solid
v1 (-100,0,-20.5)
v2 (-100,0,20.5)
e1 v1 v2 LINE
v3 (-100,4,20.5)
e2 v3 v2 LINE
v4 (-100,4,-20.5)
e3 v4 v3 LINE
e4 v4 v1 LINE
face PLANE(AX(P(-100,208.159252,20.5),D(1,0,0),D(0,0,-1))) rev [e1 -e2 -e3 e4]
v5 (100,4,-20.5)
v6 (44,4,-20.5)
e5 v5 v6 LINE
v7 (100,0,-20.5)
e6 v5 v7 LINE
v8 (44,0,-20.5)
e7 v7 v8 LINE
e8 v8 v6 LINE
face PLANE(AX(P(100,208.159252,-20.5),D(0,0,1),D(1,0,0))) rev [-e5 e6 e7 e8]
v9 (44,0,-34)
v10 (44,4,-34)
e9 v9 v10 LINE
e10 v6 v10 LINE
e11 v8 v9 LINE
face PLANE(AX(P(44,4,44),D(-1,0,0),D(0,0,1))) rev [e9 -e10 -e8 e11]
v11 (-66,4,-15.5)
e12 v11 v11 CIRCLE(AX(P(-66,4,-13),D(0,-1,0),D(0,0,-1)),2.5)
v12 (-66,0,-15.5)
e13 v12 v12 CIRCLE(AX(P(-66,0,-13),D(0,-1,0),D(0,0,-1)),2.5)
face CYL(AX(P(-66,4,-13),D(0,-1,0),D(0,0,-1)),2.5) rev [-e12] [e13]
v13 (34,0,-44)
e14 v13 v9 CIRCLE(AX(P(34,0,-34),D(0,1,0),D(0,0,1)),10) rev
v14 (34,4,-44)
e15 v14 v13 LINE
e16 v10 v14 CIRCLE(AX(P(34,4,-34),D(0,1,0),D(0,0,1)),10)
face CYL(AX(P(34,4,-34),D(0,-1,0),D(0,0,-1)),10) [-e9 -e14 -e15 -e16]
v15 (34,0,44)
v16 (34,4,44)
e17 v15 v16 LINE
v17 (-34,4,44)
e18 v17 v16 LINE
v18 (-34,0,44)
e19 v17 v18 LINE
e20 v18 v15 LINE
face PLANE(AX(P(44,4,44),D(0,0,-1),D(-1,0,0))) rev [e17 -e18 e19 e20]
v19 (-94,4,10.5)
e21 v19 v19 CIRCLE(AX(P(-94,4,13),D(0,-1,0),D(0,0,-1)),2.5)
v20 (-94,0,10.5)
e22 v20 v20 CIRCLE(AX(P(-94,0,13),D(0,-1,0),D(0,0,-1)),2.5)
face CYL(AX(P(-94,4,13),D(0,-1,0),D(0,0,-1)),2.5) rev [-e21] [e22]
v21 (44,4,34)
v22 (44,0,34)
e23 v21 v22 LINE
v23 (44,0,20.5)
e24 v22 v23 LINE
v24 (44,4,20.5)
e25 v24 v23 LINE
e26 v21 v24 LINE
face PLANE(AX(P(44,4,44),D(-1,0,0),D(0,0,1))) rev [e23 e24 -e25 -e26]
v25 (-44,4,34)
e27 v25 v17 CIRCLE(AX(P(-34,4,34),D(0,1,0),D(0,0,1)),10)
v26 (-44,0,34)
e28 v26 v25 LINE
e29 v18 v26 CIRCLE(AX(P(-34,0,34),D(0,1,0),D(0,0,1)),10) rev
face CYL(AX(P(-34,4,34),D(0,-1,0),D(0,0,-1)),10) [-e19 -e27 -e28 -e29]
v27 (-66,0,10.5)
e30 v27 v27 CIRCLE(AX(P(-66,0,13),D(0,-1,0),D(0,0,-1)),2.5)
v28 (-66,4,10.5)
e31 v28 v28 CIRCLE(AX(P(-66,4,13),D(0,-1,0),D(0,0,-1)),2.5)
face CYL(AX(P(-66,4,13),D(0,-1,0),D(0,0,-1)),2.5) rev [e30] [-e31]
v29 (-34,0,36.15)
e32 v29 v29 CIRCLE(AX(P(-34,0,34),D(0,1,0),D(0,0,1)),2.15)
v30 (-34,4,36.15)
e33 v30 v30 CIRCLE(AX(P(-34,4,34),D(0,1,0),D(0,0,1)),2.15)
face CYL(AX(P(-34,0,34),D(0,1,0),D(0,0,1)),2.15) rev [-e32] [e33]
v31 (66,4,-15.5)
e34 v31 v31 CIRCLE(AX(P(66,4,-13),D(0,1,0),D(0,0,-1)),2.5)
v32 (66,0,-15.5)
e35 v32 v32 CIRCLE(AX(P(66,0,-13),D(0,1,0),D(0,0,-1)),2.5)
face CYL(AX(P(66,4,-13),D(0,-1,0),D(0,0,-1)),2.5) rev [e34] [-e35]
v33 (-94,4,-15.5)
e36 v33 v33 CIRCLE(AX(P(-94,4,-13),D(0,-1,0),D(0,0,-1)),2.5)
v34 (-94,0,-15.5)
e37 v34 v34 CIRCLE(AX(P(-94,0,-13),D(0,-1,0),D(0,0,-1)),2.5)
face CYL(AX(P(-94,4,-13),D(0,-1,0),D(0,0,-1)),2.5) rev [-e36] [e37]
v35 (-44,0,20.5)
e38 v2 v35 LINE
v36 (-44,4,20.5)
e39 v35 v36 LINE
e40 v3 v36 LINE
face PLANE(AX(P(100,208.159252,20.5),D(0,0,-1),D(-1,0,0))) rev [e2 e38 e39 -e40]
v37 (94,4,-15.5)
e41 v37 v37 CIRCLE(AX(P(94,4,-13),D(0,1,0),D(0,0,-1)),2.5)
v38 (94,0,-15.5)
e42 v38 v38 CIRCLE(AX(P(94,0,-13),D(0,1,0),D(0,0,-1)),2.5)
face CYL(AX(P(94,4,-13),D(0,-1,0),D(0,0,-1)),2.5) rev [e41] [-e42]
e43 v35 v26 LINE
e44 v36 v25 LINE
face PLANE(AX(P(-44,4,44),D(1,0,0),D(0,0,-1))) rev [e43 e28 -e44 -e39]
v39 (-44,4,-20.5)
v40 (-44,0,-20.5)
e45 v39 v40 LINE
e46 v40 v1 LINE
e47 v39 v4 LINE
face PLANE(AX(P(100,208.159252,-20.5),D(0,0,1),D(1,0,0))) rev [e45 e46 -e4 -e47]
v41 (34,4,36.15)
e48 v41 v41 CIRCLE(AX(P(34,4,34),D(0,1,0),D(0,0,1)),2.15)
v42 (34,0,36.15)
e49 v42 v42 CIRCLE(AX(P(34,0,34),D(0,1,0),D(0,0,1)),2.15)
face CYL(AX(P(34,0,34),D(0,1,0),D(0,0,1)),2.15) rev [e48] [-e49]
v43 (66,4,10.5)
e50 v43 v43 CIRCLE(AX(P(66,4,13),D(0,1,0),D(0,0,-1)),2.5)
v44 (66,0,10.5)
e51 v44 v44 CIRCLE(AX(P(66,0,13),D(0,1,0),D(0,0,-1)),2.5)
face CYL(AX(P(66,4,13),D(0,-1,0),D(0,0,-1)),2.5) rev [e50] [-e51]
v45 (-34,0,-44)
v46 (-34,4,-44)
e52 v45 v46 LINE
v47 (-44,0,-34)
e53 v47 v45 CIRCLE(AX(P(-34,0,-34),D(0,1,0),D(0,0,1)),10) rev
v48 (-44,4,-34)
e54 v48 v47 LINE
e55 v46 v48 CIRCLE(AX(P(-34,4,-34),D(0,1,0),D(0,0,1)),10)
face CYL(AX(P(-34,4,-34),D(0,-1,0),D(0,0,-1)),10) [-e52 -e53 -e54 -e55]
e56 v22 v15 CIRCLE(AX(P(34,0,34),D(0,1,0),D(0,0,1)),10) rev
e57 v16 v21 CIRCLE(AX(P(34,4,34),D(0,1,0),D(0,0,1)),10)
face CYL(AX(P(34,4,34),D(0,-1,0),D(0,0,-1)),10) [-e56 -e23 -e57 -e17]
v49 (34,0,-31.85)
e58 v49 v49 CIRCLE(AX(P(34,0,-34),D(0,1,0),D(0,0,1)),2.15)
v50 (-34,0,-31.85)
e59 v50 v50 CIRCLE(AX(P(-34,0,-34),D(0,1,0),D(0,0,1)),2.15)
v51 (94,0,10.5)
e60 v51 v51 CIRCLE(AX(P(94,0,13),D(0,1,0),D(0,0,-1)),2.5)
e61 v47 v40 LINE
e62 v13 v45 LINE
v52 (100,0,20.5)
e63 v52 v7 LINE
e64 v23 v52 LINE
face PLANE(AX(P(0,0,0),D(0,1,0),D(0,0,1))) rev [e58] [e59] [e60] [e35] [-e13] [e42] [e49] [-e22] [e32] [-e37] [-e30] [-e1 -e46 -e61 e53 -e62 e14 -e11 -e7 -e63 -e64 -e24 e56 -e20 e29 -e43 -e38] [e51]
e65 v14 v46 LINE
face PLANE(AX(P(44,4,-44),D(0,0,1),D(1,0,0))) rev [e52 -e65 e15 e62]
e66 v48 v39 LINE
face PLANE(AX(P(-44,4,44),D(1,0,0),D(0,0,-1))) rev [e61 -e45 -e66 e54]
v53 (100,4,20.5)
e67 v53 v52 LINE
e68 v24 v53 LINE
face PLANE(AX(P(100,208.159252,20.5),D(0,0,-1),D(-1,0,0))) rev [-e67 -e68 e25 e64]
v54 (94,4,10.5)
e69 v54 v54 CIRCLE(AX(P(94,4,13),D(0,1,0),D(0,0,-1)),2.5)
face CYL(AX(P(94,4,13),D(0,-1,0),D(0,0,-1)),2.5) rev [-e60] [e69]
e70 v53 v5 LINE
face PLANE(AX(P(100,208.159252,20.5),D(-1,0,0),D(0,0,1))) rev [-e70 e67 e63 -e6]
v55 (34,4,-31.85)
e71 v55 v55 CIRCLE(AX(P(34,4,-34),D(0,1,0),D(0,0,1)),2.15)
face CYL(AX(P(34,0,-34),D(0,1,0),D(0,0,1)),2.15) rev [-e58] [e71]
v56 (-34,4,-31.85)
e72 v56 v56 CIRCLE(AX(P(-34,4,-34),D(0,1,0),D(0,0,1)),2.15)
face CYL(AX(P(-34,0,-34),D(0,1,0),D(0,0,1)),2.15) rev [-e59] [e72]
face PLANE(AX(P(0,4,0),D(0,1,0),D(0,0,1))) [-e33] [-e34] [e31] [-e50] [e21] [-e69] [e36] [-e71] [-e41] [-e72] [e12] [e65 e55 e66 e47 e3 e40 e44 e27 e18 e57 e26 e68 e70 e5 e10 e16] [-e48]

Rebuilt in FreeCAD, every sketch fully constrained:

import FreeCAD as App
import Part
import Sketcher
from FreeCAD import Vector


def edges_at(feature, points):
    """Names of the edges that pass closest to the given points."""
    edges = feature.Shape.Edges
    near = lambda p: min(range(len(edges)), key=lambda i: edges[i].distToShape(Part.Vertex(*p))[0])
    return sorted({f"Edge{near(p) + 1}" for p in points})


def add_polygon(sketch, points):
    """Adds a closed chain of lines whose ends are joined by coincident constraints."""
    first, n = sketch.GeometryCount, len(points)
    for a, b in zip(points, points[1:] + points[:1]):
        sketch.addGeometry(Part.LineSegment(App.Vector(*a, 0), App.Vector(*b, 0)), False)
    for i in range(n):
        sketch.addConstraint(Sketcher.Constraint("Coincident", first + i, 2, first + (i + 1) % n, 1))

doc = App.newDocument("Part")
params = doc.addObject("Spreadsheet::Sheet", "Params")
for row, (alias, value) in enumerate([
    ("sketch1_width", "88 mm"),
    ("pad1_length", "4 mm"),
    ("fillet_radius", "10 mm"),
    ("sketch2_diameter", "4.3 mm"),
    ("sketch3_width", "200 mm"),
    ("sketch3_height", "41 mm"),
    ("pad2_length", "4 mm"),
    ("sketch4_diameter", "5 mm"),
], start=1):
    params.set(f"A{row}", alias)
    params.set(f"B{row}", "=" + value)
    params.setAlias(f"B{row}", alias)

body = doc.addObject("PartDesign::Body", "Body")

# Sketch on XZ plane
sketch1 = doc.addObject("Sketcher::SketchObject", "Sketch")
body.addObject(sketch1)
sketch1.AttachmentSupport = (doc.XZ_Plane, [""])
sketch1.MapMode = "FlatFace"
add_polygon(sketch1, [(-44, -44), (-44, 44), (44, 44), (44, -44)])  # lines 0-3
sketch1.addConstraint([
    Sketcher.Constraint("Vertical", 0),
    Sketcher.Constraint("Horizontal", 1),
    Sketcher.Constraint("Vertical", 2),
    Sketcher.Constraint("Horizontal", 3),
    Sketcher.Constraint("Symmetric", 0, 2, 2, 2, -1, 1),
    Sketcher.Constraint("Equal", 3, 0),
    Sketcher.Constraint("DistanceX", 1, 1, 1, 2, 88.0),
])
sketch1.setExpression("Constraints[10]", "Params.sketch1_width")
pad1 = doc.addObject("PartDesign::Pad", "Pad")
body.addObject(pad1)
pad1.Profile = sketch1
pad1.setExpression("Length", "Params.pad1_length")
pad1.Reversed = True
doc.recompute()

fillet = doc.addObject("PartDesign::Fillet", "Fillet")
body.addObject(fillet)
fillet.Base = (pad1, edges_at(pad1, [
    (-44, 2, -44),
    (44, 2, -44),
    (44, 2, 44),
    (-44, 2, 44),
]))
fillet.setExpression("Radius", "Params.fillet_radius")

# Sketch on XZ plane
sketch2 = doc.addObject("Sketcher::SketchObject", "Sketch001")
body.addObject(sketch2)
sketch2.AttachmentSupport = (doc.XZ_Plane, [""])
sketch2.MapMode = "FlatFace"
sketch2.AttachmentOffset = App.Placement(Vector(0, 0, -4), App.Rotation())
sketch2.addGeometry([
    Part.Circle(Vector(34, -34, 0), Vector(0, 0, 1), 2.1),
    Part.Circle(Vector(-34, -34, 0), Vector(0, 0, 1), 2.1),
    Part.Circle(Vector(34, 34, 0), Vector(0, 0, 1), 2.1),
    Part.Circle(Vector(-34, 34, 0), Vector(0, 0, 1), 2.1),
], False)
sketch2.addConstraint([
    Sketcher.Constraint("Equal", 0, 1),
    Sketcher.Constraint("Equal", 1, 2),
    Sketcher.Constraint("Equal", 2, 3),
    Sketcher.Constraint("Symmetric", 1, 3, 2, 3, -1, 1),
    Sketcher.Constraint("Symmetric", 0, 3, 3, 3, -1, 1),
    Sketcher.Constraint("Symmetric", 0, 3, 1, 3, -2),
    Sketcher.Constraint("Diameter", 0, 4.3),
    Sketcher.Constraint("DistanceX", -1, 1, 0, 3, 34.0),
    Sketcher.Constraint("DistanceY", 0, 3, -1, 1, 34.0),
])
sketch2.setExpression("Constraints[6]", "Params.sketch2_diameter")
pocket1 = doc.addObject("PartDesign::Pocket", "Pocket")
body.addObject(pocket1)
pocket1.Profile = sketch2
pocket1.Type = "ThroughAll"
pocket1.Reversed = True

# Sketch on XZ plane
sketch3 = doc.addObject("Sketcher::SketchObject", "Sketch002")
body.addObject(sketch3)
sketch3.AttachmentSupport = (doc.XZ_Plane, [""])
sketch3.MapMode = "FlatFace"
add_polygon(sketch3, [(-100, -20), (-100, 20), (100, 20), (100, -20)])  # lines 0-3
sketch3.addConstraint([
    Sketcher.Constraint("Vertical", 0),
    Sketcher.Constraint("Horizontal", 1),
    Sketcher.Constraint("Vertical", 2),
    Sketcher.Constraint("Horizontal", 3),
    Sketcher.Constraint("Symmetric", 0, 2, 2, 2, -1, 1),
    Sketcher.Constraint("DistanceX", 1, 1, 1, 2, 200.0),
    Sketcher.Constraint("DistanceY", 0, 1, 0, 2, 41.0),
])
sketch3.setExpression("Constraints[9]", "Params.sketch3_width")
sketch3.setExpression("Constraints[10]", "Params.sketch3_height")
pad2 = doc.addObject("PartDesign::Pad", "Pad001")
body.addObject(pad2)
pad2.Profile = sketch3
pad2.setExpression("Length", "Params.pad2_length")
pad2.Reversed = True

# Sketch on XZ plane
sketch4 = doc.addObject("Sketcher::SketchObject", "Sketch003")
body.addObject(sketch4)
sketch4.AttachmentSupport = (doc.XZ_Plane, [""])
sketch4.MapMode = "FlatFace"
sketch4.addGeometry([
    Part.Circle(Vector(-66, 13, 0), Vector(0, 0, 1), 2.5),
    Part.Circle(Vector(-66, -13, 0), Vector(0, 0, 1), 2.5),
    Part.Circle(Vector(-94, -13, 0), Vector(0, 0, 1), 2.5),
    Part.Circle(Vector(-94, 13, 0), Vector(0, 0, 1), 2.5),
], False)
sketch4.addConstraint([
    Sketcher.Constraint("Equal", 0, 1),
    Sketcher.Constraint("Equal", 1, 2),
    Sketcher.Constraint("Equal", 2, 3),
    Sketcher.Constraint("Symmetric", 0, 3, 1, 3, -1),
    Sketcher.Constraint("Symmetric", 2, 3, 3, 3, -1),
    Sketcher.Constraint("Horizontal", 1, 3, 2, 3),
    Sketcher.Constraint("Diameter", 0, 5.0),
    Sketcher.Constraint("DistanceX", 0, 3, -1, 1, 66.0),
    Sketcher.Constraint("DistanceY", -1, 1, 0, 3, 13.0),
    Sketcher.Constraint("DistanceX", 2, 3, -1, 1, 94.0),
])
sketch4.setExpression("Constraints[6]", "Params.sketch4_diameter")
pocket2 = doc.addObject("PartDesign::Pocket", "Pocket001")
body.addObject(pocket2)
pocket2.Profile = sketch4
pocket2.Type = "ThroughAll"
doc.recompute()

mirrored = doc.addObject("PartDesign::Mirrored", "Mirrored")
body.addObject(mirrored)
mirrored.Originals = [pocket2]
mirrored.MirrorPlane = (doc.YZ_Plane, [""])
body.Tip = mirrored

doc.recompute()
